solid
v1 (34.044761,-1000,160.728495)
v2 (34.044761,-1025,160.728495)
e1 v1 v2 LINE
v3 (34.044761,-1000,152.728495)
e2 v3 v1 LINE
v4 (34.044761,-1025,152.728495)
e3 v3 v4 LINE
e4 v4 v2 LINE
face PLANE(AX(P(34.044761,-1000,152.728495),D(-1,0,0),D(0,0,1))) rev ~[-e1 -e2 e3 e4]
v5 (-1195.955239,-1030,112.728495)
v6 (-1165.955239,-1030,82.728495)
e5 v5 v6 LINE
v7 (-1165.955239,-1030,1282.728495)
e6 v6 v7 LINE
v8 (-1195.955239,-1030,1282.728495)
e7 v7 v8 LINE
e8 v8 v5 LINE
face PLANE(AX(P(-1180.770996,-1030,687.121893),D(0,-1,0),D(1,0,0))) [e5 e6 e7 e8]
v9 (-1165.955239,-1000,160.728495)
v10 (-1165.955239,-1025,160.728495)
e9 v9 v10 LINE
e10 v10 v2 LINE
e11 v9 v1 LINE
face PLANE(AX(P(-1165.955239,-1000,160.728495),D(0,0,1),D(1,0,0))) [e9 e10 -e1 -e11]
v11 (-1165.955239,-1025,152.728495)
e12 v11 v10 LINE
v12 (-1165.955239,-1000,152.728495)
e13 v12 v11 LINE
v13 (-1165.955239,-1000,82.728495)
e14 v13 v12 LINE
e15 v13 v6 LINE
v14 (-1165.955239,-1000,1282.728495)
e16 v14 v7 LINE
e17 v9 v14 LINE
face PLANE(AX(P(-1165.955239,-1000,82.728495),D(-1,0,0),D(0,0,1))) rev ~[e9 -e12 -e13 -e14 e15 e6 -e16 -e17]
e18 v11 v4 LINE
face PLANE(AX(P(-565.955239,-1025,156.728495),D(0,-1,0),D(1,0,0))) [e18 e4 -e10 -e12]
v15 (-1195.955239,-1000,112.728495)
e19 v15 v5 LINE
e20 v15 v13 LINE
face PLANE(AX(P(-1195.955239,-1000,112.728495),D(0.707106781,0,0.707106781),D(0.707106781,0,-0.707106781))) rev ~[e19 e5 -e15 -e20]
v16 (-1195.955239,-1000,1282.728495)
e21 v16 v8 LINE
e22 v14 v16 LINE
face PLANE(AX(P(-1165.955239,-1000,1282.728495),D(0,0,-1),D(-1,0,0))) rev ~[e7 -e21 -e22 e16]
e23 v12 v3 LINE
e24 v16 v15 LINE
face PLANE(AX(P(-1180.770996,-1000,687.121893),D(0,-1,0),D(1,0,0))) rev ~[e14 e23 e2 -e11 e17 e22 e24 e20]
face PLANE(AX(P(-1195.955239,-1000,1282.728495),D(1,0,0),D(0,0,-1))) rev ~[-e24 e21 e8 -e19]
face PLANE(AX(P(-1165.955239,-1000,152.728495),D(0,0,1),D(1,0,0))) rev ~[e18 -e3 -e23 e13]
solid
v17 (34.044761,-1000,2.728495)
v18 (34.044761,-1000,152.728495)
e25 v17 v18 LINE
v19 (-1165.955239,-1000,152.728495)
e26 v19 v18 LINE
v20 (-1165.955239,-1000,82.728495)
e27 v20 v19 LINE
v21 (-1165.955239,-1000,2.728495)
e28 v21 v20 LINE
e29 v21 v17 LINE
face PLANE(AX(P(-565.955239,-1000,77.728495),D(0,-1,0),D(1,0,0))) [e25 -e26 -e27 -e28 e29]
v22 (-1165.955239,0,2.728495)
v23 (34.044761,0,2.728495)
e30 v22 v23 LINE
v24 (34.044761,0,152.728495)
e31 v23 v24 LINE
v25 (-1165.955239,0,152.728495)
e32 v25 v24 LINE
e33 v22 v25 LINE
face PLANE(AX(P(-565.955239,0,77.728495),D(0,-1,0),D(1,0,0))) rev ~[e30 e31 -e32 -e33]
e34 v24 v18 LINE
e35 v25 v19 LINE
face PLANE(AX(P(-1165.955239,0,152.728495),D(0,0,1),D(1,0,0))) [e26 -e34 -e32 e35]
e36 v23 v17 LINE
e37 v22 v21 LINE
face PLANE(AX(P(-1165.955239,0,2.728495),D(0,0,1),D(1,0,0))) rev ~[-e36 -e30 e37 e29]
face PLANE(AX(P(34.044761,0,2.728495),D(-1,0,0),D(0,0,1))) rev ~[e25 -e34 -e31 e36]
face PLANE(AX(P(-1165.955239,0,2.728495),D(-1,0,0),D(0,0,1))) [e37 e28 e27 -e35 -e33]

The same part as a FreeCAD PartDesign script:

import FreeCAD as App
import Part
import Sketcher
Q = App.Units.Quantity

doc = App.newDocument("Part")
params = doc.addObject("Spreadsheet::Sheet", "Params")
for row, (alias, value) in enumerate([
    ("sketch1_width", "1200 mm"),
    ("sketch1_height", "150 mm"),
    ("pad1_length", "1000 mm"),
    ("sketch2_width", "1200 mm"),
    ("sketch2_height", "8 mm"),
    ("pad2_length", "25 mm"),
    ("sketch3_width", "30 mm"),
    ("sketch3_height", "1170 mm"),
    ("sketch3_height2", "1200 mm"),
    ("pad3_length", "30 mm"),
], start=1):
    params.set(f"A{row}", alias)
    params.set(f"B{row}", "=" + value)
    params.setAlias(f"B{row}", alias)

body = doc.addObject("PartDesign::Body", "Body")

# Sketch on XZ plane
sketch1 = body.newObject("Sketcher::SketchObject", "Sketch")
sketch1.AttachmentSupport = (doc.getObject("XZ_Plane"), [""])
sketch1.MapMode = "FlatFace"
sketch1.addGeometry(Part.LineSegment(App.Vector(-1166, 153, 0), App.Vector(-1166, 3, 0)), False)
sketch1.addGeometry(Part.LineSegment(App.Vector(-1166, 3, 0), App.Vector(34, 3, 0)), False)
sketch1.addGeometry(Part.LineSegment(App.Vector(34, 3, 0), App.Vector(34, 153, 0)), False)
sketch1.addGeometry(Part.LineSegment(App.Vector(34, 153, 0), App.Vector(-1166, 153, 0)), False)
sketch1.addConstraint(Sketcher.Constraint("Coincident", 0, 2, 1, 1))
sketch1.addConstraint(Sketcher.Constraint("Coincident", 1, 2, 2, 1))
sketch1.addConstraint(Sketcher.Constraint("Coincident", 2, 2, 3, 1))
sketch1.addConstraint(Sketcher.Constraint("Coincident", 3, 2, 0, 1))
sketch1.addConstraint(Sketcher.Constraint("Vertical", 0))
sketch1.addConstraint(Sketcher.Constraint("Horizontal", 1))
sketch1.addConstraint(Sketcher.Constraint("Vertical", 2))
sketch1.addConstraint(Sketcher.Constraint("Horizontal", 3))
sketch1.addConstraint(Sketcher.Constraint("DistanceX", 1, 1, 1, 2, Q("1200 mm")))
sketch1.addConstraint(Sketcher.Constraint("DistanceY", 0, 2, 0, 1, Q("150 mm")))
sketch1.addConstraint(Sketcher.Constraint("DistanceX", 0, 2, -1, 1, Q("1165.955239 mm")))
sketch1.addConstraint(Sketcher.Constraint("DistanceY", -1, 1, 0, 2, Q("2.728495 mm")))
sketch1.setExpression("Constraints[8]", "Params.sketch1_width")
sketch1.setExpression("Constraints[9]", "Params.sketch1_height")
pad1 = body.newObject("PartDesign::Pad", "Pad")
pad1.Profile = sketch1
pad1.setExpression("Length", "Params.pad1_length")
body2 = doc.addObject("PartDesign::Body", "Body001")

# Sketch on XZ plane
sketch2 = body2.newObject("Sketcher::SketchObject", "Sketch001")
sketch2.AttachmentSupport = (doc.getObject("XZ_Plane001"), [""])
sketch2.MapMode = "FlatFace"
sketch2.AttachmentOffset = App.Placement(App.Vector(0, 0, 1000), App.Rotation())
sketch2.addGeometry(Part.LineSegment(App.Vector(-1166, 161, 0), App.Vector(-1166, 153, 0)), False)
sketch2.addGeometry(Part.LineSegment(App.Vector(-1166, 153, 0), App.Vector(34, 153, 0)), False)
sketch2.addGeometry(Part.LineSegment(App.Vector(34, 153, 0), App.Vector(34, 161, 0)), False)
sketch2.addGeometry(Part.LineSegment(App.Vector(34, 161, 0), App.Vector(-1166, 161, 0)), False)
sketch2.addConstraint(Sketcher.Constraint("Coincident", 0, 2, 1, 1))
sketch2.addConstraint(Sketcher.Constraint("Coincident", 1, 2, 2, 1))
sketch2.addConstraint(Sketcher.Constraint("Coincident", 2, 2, 3, 1))
sketch2.addConstraint(Sketcher.Constraint("Coincident", 3, 2, 0, 1))
sketch2.addConstraint(Sketcher.Constraint("Vertical", 0))
sketch2.addConstraint(Sketcher.Constraint("Horizontal", 1))
sketch2.addConstraint(Sketcher.Constraint("Vertical", 2))
sketch2.addConstraint(Sketcher.Constraint("Horizontal", 3))
sketch2.addConstraint(Sketcher.Constraint("DistanceX", 1, 1, 1, 2, Q("1200 mm")))
sketch2.addConstraint(Sketcher.Constraint("DistanceY", 0, 2, 0, 1, Q("8 mm")))
sketch2.addConstraint(Sketcher.Constraint("DistanceX", 0, 2, -1, 1, Q("1165.955239 mm")))
sketch2.addConstraint(Sketcher.Constraint("DistanceY", -1, 1, 0, 2, Q("152.728495 mm")))
sketch2.setExpression("Constraints[8]", "Params.sketch2_width")
sketch2.setExpression("Constraints[9]", "Params.sketch2_height")
pad2 = body2.newObject("PartDesign::Pad", "Pad001")
pad2.Profile = sketch2
pad2.setExpression("Length", "Params.pad2_length")
body.AllowCompound = True
doc.recompute()

boolean = body.newObject("PartDesign::Boolean", "Boolean")
boolean.Type = "Fuse"
boolean.addObjects([body2])

# Sketch on XZ plane
sketch3 = body.newObject("Sketcher::SketchObject", "Sketch002")
sketch3.AttachmentSupport = (doc.getObject("XZ_Plane"), [""])
sketch3.MapMode = "FlatFace"
sketch3.AttachmentOffset = App.Placement(App.Vector(0, 0, 1000), App.Rotation())
sketch3.addGeometry(Part.LineSegment(App.Vector(-1166, 1283, 0), App.Vector(-1196, 1283, 0)), False)
sketch3.addGeometry(Part.LineSegment(App.Vector(-1196, 1283, 0), App.Vector(-1196, 113, 0)), False)
sketch3.addGeometry(Part.LineSegment(App.Vector(-1196, 113, 0), App.Vector(-1166, 83, 0)), False)
sketch3.addGeometry(Part.LineSegment(App.Vector(-1166, 83, 0), App.Vector(-1166, 1283, 0)), False)
sketch3.addConstraint(Sketcher.Constraint("Coincident", 0, 2, 1, 1))
sketch3.addConstraint(Sketcher.Constraint("Coincident", 1, 2, 2, 1))
sketch3.addConstraint(Sketcher.Constraint("Coincident", 2, 2, 3, 1))
sketch3.addConstraint(Sketcher.Constraint("Coincident", 3, 2, 0, 1))
sketch3.addConstraint(Sketcher.Constraint("Horizontal", 0))
sketch3.addConstraint(Sketcher.Constraint("Vertical", 1))
sketch3.addConstraint(Sketcher.Constraint("Vertical", 3))
sketch3.addConstraint(Sketcher.Constraint("DistanceX", 0, 2, 0, 1, Q("30 mm")))
sketch3.addConstraint(Sketcher.Constraint("DistanceY", 1, 2, 1, 1, Q("1170 mm")))
sketch3.addConstraint(Sketcher.Constraint("DistanceY", 3, 1, 3, 2, Q("1200 mm")))
sketch3.addConstraint(Sketcher.Constraint("DistanceX", 0, 2, -1, 1, Q("1195.955239 mm")))
sketch3.addConstraint(Sketcher.Constraint("DistanceY", -1, 1, 0, 2, Q("1282.728495 mm")))
sketch3.setExpression("Constraints[7]", "Params.sketch3_width")
sketch3.setExpression("Constraints[8]", "Params.sketch3_height")
sketch3.setExpression("Constraints[9]", "Params.sketch3_height2")
pad3 = body.newObject("PartDesign::Pad", "Pad002")
pad3.Profile = sketch3
pad3.setExpression("Length", "Params.pad3_length")

doc.recompute()
